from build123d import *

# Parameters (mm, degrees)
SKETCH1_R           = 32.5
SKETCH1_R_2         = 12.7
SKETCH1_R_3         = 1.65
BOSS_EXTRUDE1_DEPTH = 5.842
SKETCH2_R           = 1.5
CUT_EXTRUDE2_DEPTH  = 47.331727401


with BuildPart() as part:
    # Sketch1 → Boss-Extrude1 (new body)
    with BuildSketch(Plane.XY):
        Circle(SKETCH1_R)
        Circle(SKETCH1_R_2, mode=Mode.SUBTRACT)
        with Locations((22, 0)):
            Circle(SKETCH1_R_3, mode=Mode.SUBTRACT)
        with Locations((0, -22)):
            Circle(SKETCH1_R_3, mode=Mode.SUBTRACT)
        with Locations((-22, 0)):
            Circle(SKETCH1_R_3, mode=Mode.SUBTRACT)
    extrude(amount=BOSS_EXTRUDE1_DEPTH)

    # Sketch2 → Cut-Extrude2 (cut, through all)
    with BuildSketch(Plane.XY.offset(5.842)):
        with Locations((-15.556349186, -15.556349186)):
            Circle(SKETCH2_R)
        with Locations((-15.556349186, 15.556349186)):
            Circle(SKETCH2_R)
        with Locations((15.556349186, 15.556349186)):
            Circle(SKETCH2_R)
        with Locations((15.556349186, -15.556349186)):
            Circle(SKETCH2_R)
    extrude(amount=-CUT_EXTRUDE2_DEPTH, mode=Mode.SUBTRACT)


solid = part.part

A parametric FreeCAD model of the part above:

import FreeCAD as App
import Part
import Sketcher

doc = App.newDocument("Part")
body = doc.addObject("PartDesign::Body", "Body")

# Sketch on XY plane
sketch1 = body.newObject("Sketcher::SketchObject", "Sketch")
sketch1.AttachmentSupport = (doc.getObject("XY_Plane"), [""])
sketch1.MapMode = "FlatFace"
sketch1.addGeometry([
    Part.Circle(App.Vector(0, 0, 0), App.Vector(0, 0, 1), 32.5),  # 0
    Part.Circle(App.Vector(0, -22, 0), App.Vector(0, 0, 1), 1.65),  # 1
    Part.Circle(App.Vector(-22, 0, 0), App.Vector(0, 0, 1), 1.65),  # 2
    Part.Circle(App.Vector(0, 0, 0), App.Vector(0, 0, 1), 12.7),  # 3
    Part.Circle(App.Vector(22, 0, 0), App.Vector(0, 0, 1), 1.65),  # 4
], False)
sketch1.addConstraint([
    Sketcher.Constraint("Coincident", 0, 3, -1, 1),
    Sketcher.Constraint("Coincident", 3, 3, -1, 1),
    Sketcher.Constraint("Equal", 1, 2),
    Sketcher.Constraint("Equal", 2, 4),
    Sketcher.Constraint("Symmetric", 2, 3, 4, 3, -1, 1),
    Sketcher.Constraint("PointOnObject", 1, 3, -2),
    Sketcher.Constraint("PointOnObject", 2, 3, -1),
    Sketcher.Constraint("Diameter", 0, 65.0),
    Sketcher.Constraint("Diameter", 1, 3.3),
    Sketcher.Constraint("Diameter", 3, 25.4),
    Sketcher.Constraint("DistanceY", 1, 3, -1, 1, 22.0),
    Sketcher.Constraint("DistanceX", 2, 3, -1, 1, 22.0),
])
pad1 = body.newObject("PartDesign::Pad", "Pad")
pad1.Profile = sketch1
pad1.Length = 5.842

# Sketch on XY plane
sketch2 = body.newObject("Sketcher::SketchObject", "Sketch001")
sketch2.AttachmentSupport = (doc.getObject("XY_Plane"), [""])
sketch2.MapMode = "FlatFace"
sketch2.AttachmentOffset = App.Placement(App.Vector(0, 0, 5.842), App.Rotation())
sketch2.addGeometry([
    Part.Circle(App.Vector(-15.556349, -15.556349, 0), App.Vector(0, 0, 1), 1.5),
    Part.Circle(App.Vector(-15.556349, 15.556349, 0), App.Vector(0, 0, 1), 1.5),
    Part.Circle(App.Vector(15.556349, 15.556349, 0), App.Vector(0, 0, 1), 1.5),
    Part.Circle(App.Vector(15.556349, -15.556349, 0), App.Vector(0, 0, 1), 1.5),
], False)
sketch2.addConstraint([
    Sketcher.Constraint("Equal", 0, 1),
    Sketcher.Constraint("Equal", 1, 2),
    Sketcher.Constraint("Equal", 2, 3),
    Sketcher.Constraint("Symmetric", 0, 3, 2, 3, -1, 1),
    Sketcher.Constraint("Symmetric", 1, 3, 3, 3, -1, 1),
    Sketcher.Constraint("Symmetric", 1, 3, 2, 3, -2),
    Sketcher.Constraint("Diameter", 0, 3.0),
    Sketcher.Constraint("DistanceY", 0, 3, 1, 3, 31.112698),
    Sketcher.Constraint("DistanceX", 1, 3, 2, 3, 31.112698),
])
pocket1 = body.newObject("PartDesign::Pocket", "Pocket")
pocket1.Profile = sketch2
pocket1.Type = "ThroughAll"

doc.recompute()
